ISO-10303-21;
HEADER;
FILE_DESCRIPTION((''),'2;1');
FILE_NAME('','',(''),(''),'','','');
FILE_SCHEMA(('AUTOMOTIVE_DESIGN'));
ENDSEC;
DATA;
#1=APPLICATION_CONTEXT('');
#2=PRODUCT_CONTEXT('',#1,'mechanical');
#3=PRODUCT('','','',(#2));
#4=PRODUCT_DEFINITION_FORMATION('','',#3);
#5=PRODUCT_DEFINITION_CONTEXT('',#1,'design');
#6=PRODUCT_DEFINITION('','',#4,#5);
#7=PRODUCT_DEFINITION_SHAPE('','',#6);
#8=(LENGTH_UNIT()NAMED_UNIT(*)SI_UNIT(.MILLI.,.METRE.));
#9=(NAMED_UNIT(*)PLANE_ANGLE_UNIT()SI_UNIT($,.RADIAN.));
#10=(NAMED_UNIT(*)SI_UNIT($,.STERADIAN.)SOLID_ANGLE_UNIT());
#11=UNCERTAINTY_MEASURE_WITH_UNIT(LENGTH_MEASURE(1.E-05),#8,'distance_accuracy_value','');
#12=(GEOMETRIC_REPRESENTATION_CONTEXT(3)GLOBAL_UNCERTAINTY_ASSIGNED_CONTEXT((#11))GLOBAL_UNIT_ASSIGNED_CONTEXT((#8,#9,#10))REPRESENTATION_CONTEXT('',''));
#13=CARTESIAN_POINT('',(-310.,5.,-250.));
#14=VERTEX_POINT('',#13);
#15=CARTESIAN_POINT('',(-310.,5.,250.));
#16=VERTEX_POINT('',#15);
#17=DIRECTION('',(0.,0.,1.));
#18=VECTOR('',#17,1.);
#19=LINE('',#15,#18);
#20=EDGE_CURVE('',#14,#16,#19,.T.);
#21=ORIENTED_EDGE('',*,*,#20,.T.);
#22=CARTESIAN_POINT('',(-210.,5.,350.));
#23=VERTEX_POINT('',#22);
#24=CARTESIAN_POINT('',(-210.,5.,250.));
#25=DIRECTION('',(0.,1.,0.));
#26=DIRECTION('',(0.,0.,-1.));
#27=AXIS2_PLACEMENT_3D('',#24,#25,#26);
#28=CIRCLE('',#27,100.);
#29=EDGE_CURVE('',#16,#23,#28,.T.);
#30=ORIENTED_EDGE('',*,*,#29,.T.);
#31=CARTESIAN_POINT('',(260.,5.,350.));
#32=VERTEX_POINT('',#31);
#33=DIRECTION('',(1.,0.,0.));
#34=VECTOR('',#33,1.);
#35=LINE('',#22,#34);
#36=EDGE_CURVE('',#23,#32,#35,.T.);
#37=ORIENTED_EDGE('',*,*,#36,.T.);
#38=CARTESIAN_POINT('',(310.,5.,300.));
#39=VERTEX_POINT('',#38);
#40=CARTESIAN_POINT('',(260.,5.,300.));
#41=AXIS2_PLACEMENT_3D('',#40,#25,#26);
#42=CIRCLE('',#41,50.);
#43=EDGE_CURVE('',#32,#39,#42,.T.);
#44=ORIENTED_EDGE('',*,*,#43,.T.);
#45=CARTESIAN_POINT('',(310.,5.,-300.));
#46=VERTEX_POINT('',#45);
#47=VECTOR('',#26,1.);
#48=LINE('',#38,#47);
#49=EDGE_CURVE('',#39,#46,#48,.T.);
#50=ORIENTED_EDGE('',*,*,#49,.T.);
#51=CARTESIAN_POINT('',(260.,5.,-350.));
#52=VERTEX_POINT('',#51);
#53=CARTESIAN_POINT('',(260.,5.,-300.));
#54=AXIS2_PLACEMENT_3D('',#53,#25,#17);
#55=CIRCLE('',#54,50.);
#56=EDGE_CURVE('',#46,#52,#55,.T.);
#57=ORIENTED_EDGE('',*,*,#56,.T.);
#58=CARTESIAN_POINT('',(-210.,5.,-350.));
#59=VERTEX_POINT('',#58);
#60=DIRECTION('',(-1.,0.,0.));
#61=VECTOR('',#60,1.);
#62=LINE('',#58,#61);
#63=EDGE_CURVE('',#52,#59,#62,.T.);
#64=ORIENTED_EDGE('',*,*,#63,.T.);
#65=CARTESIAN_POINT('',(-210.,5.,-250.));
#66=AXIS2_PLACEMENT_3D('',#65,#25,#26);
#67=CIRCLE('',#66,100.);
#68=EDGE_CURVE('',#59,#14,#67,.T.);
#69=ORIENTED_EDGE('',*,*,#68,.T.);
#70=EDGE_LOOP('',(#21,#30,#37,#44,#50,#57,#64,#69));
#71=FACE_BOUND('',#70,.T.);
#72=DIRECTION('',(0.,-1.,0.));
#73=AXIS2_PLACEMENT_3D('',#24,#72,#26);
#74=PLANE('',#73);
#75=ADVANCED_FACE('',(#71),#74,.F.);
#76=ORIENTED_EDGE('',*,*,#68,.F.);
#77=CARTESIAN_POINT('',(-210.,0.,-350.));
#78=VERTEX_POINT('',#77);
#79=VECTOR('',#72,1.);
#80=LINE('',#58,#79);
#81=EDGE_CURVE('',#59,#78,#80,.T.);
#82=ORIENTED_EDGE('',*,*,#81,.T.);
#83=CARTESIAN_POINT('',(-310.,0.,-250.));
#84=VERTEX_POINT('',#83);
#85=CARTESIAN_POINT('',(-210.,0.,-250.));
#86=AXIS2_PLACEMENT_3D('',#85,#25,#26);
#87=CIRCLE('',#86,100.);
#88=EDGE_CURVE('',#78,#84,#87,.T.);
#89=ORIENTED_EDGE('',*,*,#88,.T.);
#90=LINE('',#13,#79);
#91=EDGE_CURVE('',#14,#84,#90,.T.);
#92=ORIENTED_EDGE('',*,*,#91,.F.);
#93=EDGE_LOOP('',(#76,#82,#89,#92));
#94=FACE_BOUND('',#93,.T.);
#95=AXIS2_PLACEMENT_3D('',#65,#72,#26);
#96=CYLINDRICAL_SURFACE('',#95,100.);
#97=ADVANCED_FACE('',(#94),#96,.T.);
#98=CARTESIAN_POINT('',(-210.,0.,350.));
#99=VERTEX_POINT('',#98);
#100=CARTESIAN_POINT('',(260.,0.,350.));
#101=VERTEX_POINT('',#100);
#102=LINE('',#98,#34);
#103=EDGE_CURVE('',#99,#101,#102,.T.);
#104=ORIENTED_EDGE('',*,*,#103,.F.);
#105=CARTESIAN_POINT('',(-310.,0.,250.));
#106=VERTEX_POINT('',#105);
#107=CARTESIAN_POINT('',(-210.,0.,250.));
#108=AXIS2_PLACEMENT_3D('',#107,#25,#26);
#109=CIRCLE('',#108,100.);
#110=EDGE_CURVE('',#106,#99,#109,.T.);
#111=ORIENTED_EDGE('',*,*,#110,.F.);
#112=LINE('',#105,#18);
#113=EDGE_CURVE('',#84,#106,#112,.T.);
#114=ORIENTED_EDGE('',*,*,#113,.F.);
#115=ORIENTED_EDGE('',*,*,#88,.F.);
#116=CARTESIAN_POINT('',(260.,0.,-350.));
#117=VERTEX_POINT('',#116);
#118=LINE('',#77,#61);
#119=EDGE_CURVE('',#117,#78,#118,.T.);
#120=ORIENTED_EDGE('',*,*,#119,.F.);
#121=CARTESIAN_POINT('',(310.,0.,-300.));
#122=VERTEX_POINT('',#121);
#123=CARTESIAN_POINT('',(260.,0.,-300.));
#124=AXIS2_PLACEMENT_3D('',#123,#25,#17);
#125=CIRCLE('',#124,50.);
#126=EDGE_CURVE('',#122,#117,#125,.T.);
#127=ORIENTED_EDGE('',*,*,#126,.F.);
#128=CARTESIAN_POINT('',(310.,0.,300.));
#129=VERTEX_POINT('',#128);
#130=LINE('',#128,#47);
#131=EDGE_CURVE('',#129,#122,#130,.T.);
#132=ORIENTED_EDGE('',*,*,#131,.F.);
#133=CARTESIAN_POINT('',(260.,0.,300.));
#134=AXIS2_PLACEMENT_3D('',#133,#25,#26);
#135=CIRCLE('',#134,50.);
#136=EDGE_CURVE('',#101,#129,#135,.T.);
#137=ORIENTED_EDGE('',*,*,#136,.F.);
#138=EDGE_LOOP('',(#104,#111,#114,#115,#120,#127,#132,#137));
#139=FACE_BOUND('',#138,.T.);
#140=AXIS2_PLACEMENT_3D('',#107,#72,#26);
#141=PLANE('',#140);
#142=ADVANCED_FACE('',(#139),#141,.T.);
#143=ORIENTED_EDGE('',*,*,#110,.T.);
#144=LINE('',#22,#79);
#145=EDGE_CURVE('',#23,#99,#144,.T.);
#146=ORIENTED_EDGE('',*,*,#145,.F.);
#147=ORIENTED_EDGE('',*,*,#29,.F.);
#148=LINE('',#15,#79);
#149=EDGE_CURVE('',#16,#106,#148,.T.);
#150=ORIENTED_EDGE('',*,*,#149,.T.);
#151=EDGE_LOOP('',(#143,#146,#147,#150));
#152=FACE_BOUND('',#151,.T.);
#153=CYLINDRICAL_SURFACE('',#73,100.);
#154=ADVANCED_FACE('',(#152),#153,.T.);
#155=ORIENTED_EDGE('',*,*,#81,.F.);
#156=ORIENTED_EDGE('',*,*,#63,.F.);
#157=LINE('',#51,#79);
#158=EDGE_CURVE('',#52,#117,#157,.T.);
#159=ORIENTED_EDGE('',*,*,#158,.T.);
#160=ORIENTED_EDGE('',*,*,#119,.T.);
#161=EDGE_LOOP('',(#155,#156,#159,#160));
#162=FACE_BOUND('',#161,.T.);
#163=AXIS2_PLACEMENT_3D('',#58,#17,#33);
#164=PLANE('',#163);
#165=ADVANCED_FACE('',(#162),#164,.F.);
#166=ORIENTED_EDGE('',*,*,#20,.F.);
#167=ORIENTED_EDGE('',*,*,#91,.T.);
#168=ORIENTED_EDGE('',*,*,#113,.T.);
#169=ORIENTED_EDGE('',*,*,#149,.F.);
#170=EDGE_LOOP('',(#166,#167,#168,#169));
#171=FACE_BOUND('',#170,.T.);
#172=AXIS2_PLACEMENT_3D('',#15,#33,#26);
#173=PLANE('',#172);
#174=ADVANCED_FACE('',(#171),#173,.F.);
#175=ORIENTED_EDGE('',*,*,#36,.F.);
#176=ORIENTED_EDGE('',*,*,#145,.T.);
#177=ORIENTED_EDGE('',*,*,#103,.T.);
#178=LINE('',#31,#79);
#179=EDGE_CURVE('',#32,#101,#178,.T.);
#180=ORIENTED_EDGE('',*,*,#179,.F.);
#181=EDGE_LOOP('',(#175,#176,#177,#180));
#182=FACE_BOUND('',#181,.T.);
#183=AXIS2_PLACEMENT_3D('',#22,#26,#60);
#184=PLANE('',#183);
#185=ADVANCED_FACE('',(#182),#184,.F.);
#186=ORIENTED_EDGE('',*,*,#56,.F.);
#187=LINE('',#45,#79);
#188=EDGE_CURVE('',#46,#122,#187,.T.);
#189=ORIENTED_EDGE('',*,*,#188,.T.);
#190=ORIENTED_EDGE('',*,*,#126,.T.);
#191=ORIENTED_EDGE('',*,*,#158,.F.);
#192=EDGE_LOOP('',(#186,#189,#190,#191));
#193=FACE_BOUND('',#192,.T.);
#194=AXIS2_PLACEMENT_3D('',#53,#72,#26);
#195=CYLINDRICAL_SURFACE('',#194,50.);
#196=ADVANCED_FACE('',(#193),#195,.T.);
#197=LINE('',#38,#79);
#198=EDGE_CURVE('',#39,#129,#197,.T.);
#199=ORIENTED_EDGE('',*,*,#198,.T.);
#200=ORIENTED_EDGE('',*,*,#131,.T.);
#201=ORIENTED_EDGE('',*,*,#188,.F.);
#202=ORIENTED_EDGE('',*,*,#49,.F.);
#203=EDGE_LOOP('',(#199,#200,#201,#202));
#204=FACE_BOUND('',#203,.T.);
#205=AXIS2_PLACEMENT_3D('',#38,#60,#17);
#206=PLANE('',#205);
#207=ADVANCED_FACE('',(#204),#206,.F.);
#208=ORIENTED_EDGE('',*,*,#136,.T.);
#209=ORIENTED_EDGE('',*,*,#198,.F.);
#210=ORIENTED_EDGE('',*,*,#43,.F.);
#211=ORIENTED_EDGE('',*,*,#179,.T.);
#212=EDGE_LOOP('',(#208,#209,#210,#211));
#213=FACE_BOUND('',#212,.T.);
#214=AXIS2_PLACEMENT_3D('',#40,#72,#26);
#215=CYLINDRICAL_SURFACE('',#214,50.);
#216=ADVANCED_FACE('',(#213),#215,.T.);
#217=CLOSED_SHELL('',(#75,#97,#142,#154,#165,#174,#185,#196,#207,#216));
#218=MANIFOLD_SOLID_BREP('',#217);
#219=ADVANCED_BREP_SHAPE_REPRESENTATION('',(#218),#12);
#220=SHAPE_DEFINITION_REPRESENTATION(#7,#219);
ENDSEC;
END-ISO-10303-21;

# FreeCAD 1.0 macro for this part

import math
import FreeCAD as App
import Part
import Sketcher

V = App.Vector

doc = App.newDocument("Part")
body = doc.addObject("PartDesign::Body", "Body")

# Sketch on XZ plane
sketch1 = body.newObject("Sketcher::SketchObject", "Sketch")
sketch1.AttachmentSupport = (doc.getObject("XZ_Plane"), [""])
sketch1.MapMode = "FlatFace"
sketch1.addGeometry(Part.LineSegment(V(-210, 350, 0), V(260, 350, 0)), False)
sketch1.addGeometry(Part.ArcOfCircle(Part.Circle(V(260, 300, 0), V(0, 0, 1), 50), math.radians(0), math.radians(90)), False)
sketch1.addGeometry(Part.LineSegment(V(310, 300, 0), V(310, -300, 0)), False)
sketch1.addGeometry(Part.ArcOfCircle(Part.Circle(V(260, -300, 0), V(0, 0, 1), 50), math.radians(-90), math.radians(0)), False)
sketch1.addGeometry(Part.LineSegment(V(260, -350, 0), V(-210, -350, 0)), False)
sketch1.addGeometry(Part.ArcOfCircle(Part.Circle(V(-210, -250, 0), V(0, 0, 1), 100), math.radians(180), math.radians(270)), False)
sketch1.addGeometry(Part.LineSegment(V(-310, -250, 0), V(-310, 250, 0)), False)
sketch1.addGeometry(Part.ArcOfCircle(Part.Circle(V(-210, 250, 0), V(0, 0, 1), 100), math.radians(90), math.radians(180)), False)
sketch1.addConstraint(Sketcher.Constraint("Tangent", 0, 2, 1, 2))
sketch1.addConstraint(Sketcher.Constraint("Tangent", 1, 1, 2, 1))
sketch1.addConstraint(Sketcher.Constraint("Tangent", 2, 2, 3, 2))
sketch1.addConstraint(Sketcher.Constraint("Tangent", 3, 1, 4, 1))
sketch1.addConstraint(Sketcher.Constraint("Tangent", 4, 2, 5, 2))
sketch1.addConstraint(Sketcher.Constraint("Tangent", 5, 1, 6, 1))
sketch1.addConstraint(Sketcher.Constraint("Tangent", 6, 2, 7, 2))
sketch1.addConstraint(Sketcher.Constraint("Tangent", 7, 1, 0, 1))
sketch1.addConstraint(Sketcher.Constraint("Horizontal", 0))
sketch1.addConstraint(Sketcher.Constraint("Vertical", 2))
sketch1.addConstraint(Sketcher.Constraint("Horizontal", 4))
sketch1.addConstraint(Sketcher.Constraint("Vertical", 6))
sketch1.addConstraint(Sketcher.Constraint("Equal", 1, 3))
sketch1.addConstraint(Sketcher.Constraint("Equal", 5, 7))
sketch1.addConstraint(Sketcher.Constraint("Radius", 1, 50.0))
sketch1.addConstraint(Sketcher.Constraint("Radius", 5, 100.0))
sketch1.addConstraint(Sketcher.Constraint("DistanceX", 0, 1, 0, 2, 470.0))
sketch1.addConstraint(Sketcher.Constraint("DistanceY", 2, 2, 2, 1, 600.0))
sketch1.addConstraint(Sketcher.Constraint("DistanceX", -1, 1, 1, 3, 260.0))
sketch1.addConstraint(Sketcher.Constraint("DistanceY", -1, 1, 1, 3, 300.0))
pad1 = body.newObject("PartDesign::Pad", "Pad")
pad1.Profile = sketch1
pad1.Length = 5
pad1.Reversed = True

doc.recompute()
